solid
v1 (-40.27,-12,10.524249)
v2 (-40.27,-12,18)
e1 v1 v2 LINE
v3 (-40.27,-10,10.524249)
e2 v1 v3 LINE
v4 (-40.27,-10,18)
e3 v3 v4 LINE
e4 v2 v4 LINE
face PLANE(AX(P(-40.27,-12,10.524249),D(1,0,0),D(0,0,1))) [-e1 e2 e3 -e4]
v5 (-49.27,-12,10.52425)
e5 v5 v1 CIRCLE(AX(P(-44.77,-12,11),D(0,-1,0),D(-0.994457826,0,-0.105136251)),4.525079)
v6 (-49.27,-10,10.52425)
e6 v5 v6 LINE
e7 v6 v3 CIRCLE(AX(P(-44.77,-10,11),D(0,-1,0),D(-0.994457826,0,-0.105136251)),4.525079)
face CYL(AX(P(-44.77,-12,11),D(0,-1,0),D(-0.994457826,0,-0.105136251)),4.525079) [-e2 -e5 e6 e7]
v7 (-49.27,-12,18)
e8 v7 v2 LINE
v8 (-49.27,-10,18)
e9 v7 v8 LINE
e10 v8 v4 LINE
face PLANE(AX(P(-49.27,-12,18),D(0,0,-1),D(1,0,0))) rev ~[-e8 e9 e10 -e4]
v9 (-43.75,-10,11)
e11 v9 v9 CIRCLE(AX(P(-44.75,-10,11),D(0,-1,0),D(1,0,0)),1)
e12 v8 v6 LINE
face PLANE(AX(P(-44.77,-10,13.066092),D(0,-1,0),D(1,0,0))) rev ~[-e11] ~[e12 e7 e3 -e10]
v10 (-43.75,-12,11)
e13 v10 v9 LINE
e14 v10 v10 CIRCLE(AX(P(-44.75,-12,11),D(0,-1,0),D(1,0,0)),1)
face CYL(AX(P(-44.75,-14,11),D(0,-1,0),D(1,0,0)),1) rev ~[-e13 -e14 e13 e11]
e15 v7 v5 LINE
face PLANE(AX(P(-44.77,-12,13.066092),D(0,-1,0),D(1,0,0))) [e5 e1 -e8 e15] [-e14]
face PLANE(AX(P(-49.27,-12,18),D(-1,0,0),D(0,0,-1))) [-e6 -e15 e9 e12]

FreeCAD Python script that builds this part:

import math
import FreeCAD as App
import Part
import Sketcher

V = App.Vector

doc = App.newDocument("Part")
body = doc.addObject("PartDesign::Body", "Body")

# Sketch on XY plane
sketch1 = body.newObject("Sketcher::SketchObject", "Sketch")
sketch1.AttachmentSupport = (doc.getObject("XY_Plane"), [""])
sketch1.MapMode = "FlatFace"
sketch1.addGeometry(Part.Circle(V(-45, 11, 0), V(0, 0, 1), 1), False)
sketch1.addConstraint([
    Sketcher.Constraint("Diameter", 0, 2.0),
    Sketcher.Constraint("DistanceX", 0, 3, -1, 1, 45.0),
    Sketcher.Constraint("DistanceY", -1, 1, 0, 3, 11.0),
])
pad1 = body.newObject("PartDesign::Pad", "Pad")
pad1.Profile = sketch1
pad1.Length = 5
pad1.Reversed = True
body2 = doc.addObject("PartDesign::Body", "Body001")
doc.recompute()

body.Placement = App.Placement(V(0, 0, 0), App.Rotation(V(1, 0, 0), 90))
boolean = body2.newObject("PartDesign::Boolean", "Boolean")
boolean.Type = "Fuse"
boolean.addObjects([body])
body3 = doc.addObject("PartDesign::Body", "Body002")
doc.recompute()

body2.Placement = App.Placement(V(0.25, 0, 0), App.Rotation(V(0, 0, 1), 0))
boolean2 = body3.newObject("PartDesign::Boolean", "Boolean001")
boolean2.Type = "Fuse"
boolean2.addObjects([body2])
body4 = doc.addObject("PartDesign::Body", "Body003")
doc.recompute()

body3.Placement = App.Placement(V(0, 8, 0), App.Rotation(V(0, 0, 1), 0))
boolean3 = body4.newObject("PartDesign::Boolean", "Boolean002")
boolean3.Type = "Fuse"
boolean3.addObjects([body3])
body5 = doc.addObject("PartDesign::Body", "Body004")

# Sketch on XY plane
sketch2 = body5.newObject("Sketcher::SketchObject", "Sketch001")
sketch2.AttachmentSupport = (doc.getObject("XY_Plane004"), [""])
sketch2.MapMode = "FlatFace"
sketch2.addGeometry([
    Part.ArcOfCircle(Part.Circle(V(-44.5, 11, 0), V(0, 0, 1), 4.5), math.radians(-174), math.radians(-6)),
    Part.LineSegment(V(-40, 10.5, 0), V(-40, 18, 0)),
    Part.LineSegment(V(-40, 18, 0), V(-49, 18, 0)),
    Part.LineSegment(V(-49, 18, 0), V(-49, 10.5, 0)),
], False)
sketch2.addConstraint([
    Sketcher.Constraint("Coincident", 0, 2, 1, 1),
    Sketcher.Constraint("Coincident", 1, 2, 2, 1),
    Sketcher.Constraint("Coincident", 2, 2, 3, 1),
    Sketcher.Constraint("Coincident", 3, 2, 0, 1),
    Sketcher.Constraint("Vertical", 1),
    Sketcher.Constraint("Horizontal", 2),
    Sketcher.Constraint("Vertical", 3),
    Sketcher.Constraint("Horizontal", 0, 2, 3, 2),
    Sketcher.Constraint("DistanceX", 2, 2, 2, 1, 9.0),
    Sketcher.Constraint("DistanceY", -1, 1, 0, 3, 11.0),
    Sketcher.Constraint("DistanceX", 0, 2, -1, 1, 40.0),
    Sketcher.Constraint("DistanceY", -1, 1, 1, 2, 18.0),
    Sketcher.Constraint("Radius", 0, 4.525079),
])
pad2 = body5.newObject("PartDesign::Pad", "Pad001")
pad2.Profile = sketch2
pad2.Length = 2
pad2.Reversed = True
body6 = doc.addObject("PartDesign::Body", "Body005")
doc.recompute()

body5.Placement = App.Placement(V(0, 0, 0), App.Rotation(V(1, 0, 0), 90))
boolean4 = body6.newObject("PartDesign::Boolean", "Boolean003")
boolean4.Type = "Fuse"
boolean4.addObjects([body5])
body7 = doc.addObject("PartDesign::Body", "Body006")
doc.recompute()

body6.Placement = App.Placement(V(-0.27, 10, 0), App.Rotation(V(0, 0, 1), 0))
boolean5 = body7.newObject("PartDesign::Boolean", "Boolean004")
boolean5.Type = "Fuse"
boolean5.addObjects([body6])
doc.recompute()

boolean6 = body7.newObject("PartDesign::Boolean", "Boolean005")
boolean6.Type = "Cut"
boolean6.addObjects([body4])
body8 = doc.addObject("PartDesign::Body", "Body007")
doc.recompute()

body7.Placement = App.Placement(V(0, -22, 0), App.Rotation(V(0, 0, 1), 0))
boolean7 = body8.newObject("PartDesign::Boolean", "Boolean006")
boolean7.Type = "Fuse"
boolean7.addObjects([body7])

doc.recompute()
